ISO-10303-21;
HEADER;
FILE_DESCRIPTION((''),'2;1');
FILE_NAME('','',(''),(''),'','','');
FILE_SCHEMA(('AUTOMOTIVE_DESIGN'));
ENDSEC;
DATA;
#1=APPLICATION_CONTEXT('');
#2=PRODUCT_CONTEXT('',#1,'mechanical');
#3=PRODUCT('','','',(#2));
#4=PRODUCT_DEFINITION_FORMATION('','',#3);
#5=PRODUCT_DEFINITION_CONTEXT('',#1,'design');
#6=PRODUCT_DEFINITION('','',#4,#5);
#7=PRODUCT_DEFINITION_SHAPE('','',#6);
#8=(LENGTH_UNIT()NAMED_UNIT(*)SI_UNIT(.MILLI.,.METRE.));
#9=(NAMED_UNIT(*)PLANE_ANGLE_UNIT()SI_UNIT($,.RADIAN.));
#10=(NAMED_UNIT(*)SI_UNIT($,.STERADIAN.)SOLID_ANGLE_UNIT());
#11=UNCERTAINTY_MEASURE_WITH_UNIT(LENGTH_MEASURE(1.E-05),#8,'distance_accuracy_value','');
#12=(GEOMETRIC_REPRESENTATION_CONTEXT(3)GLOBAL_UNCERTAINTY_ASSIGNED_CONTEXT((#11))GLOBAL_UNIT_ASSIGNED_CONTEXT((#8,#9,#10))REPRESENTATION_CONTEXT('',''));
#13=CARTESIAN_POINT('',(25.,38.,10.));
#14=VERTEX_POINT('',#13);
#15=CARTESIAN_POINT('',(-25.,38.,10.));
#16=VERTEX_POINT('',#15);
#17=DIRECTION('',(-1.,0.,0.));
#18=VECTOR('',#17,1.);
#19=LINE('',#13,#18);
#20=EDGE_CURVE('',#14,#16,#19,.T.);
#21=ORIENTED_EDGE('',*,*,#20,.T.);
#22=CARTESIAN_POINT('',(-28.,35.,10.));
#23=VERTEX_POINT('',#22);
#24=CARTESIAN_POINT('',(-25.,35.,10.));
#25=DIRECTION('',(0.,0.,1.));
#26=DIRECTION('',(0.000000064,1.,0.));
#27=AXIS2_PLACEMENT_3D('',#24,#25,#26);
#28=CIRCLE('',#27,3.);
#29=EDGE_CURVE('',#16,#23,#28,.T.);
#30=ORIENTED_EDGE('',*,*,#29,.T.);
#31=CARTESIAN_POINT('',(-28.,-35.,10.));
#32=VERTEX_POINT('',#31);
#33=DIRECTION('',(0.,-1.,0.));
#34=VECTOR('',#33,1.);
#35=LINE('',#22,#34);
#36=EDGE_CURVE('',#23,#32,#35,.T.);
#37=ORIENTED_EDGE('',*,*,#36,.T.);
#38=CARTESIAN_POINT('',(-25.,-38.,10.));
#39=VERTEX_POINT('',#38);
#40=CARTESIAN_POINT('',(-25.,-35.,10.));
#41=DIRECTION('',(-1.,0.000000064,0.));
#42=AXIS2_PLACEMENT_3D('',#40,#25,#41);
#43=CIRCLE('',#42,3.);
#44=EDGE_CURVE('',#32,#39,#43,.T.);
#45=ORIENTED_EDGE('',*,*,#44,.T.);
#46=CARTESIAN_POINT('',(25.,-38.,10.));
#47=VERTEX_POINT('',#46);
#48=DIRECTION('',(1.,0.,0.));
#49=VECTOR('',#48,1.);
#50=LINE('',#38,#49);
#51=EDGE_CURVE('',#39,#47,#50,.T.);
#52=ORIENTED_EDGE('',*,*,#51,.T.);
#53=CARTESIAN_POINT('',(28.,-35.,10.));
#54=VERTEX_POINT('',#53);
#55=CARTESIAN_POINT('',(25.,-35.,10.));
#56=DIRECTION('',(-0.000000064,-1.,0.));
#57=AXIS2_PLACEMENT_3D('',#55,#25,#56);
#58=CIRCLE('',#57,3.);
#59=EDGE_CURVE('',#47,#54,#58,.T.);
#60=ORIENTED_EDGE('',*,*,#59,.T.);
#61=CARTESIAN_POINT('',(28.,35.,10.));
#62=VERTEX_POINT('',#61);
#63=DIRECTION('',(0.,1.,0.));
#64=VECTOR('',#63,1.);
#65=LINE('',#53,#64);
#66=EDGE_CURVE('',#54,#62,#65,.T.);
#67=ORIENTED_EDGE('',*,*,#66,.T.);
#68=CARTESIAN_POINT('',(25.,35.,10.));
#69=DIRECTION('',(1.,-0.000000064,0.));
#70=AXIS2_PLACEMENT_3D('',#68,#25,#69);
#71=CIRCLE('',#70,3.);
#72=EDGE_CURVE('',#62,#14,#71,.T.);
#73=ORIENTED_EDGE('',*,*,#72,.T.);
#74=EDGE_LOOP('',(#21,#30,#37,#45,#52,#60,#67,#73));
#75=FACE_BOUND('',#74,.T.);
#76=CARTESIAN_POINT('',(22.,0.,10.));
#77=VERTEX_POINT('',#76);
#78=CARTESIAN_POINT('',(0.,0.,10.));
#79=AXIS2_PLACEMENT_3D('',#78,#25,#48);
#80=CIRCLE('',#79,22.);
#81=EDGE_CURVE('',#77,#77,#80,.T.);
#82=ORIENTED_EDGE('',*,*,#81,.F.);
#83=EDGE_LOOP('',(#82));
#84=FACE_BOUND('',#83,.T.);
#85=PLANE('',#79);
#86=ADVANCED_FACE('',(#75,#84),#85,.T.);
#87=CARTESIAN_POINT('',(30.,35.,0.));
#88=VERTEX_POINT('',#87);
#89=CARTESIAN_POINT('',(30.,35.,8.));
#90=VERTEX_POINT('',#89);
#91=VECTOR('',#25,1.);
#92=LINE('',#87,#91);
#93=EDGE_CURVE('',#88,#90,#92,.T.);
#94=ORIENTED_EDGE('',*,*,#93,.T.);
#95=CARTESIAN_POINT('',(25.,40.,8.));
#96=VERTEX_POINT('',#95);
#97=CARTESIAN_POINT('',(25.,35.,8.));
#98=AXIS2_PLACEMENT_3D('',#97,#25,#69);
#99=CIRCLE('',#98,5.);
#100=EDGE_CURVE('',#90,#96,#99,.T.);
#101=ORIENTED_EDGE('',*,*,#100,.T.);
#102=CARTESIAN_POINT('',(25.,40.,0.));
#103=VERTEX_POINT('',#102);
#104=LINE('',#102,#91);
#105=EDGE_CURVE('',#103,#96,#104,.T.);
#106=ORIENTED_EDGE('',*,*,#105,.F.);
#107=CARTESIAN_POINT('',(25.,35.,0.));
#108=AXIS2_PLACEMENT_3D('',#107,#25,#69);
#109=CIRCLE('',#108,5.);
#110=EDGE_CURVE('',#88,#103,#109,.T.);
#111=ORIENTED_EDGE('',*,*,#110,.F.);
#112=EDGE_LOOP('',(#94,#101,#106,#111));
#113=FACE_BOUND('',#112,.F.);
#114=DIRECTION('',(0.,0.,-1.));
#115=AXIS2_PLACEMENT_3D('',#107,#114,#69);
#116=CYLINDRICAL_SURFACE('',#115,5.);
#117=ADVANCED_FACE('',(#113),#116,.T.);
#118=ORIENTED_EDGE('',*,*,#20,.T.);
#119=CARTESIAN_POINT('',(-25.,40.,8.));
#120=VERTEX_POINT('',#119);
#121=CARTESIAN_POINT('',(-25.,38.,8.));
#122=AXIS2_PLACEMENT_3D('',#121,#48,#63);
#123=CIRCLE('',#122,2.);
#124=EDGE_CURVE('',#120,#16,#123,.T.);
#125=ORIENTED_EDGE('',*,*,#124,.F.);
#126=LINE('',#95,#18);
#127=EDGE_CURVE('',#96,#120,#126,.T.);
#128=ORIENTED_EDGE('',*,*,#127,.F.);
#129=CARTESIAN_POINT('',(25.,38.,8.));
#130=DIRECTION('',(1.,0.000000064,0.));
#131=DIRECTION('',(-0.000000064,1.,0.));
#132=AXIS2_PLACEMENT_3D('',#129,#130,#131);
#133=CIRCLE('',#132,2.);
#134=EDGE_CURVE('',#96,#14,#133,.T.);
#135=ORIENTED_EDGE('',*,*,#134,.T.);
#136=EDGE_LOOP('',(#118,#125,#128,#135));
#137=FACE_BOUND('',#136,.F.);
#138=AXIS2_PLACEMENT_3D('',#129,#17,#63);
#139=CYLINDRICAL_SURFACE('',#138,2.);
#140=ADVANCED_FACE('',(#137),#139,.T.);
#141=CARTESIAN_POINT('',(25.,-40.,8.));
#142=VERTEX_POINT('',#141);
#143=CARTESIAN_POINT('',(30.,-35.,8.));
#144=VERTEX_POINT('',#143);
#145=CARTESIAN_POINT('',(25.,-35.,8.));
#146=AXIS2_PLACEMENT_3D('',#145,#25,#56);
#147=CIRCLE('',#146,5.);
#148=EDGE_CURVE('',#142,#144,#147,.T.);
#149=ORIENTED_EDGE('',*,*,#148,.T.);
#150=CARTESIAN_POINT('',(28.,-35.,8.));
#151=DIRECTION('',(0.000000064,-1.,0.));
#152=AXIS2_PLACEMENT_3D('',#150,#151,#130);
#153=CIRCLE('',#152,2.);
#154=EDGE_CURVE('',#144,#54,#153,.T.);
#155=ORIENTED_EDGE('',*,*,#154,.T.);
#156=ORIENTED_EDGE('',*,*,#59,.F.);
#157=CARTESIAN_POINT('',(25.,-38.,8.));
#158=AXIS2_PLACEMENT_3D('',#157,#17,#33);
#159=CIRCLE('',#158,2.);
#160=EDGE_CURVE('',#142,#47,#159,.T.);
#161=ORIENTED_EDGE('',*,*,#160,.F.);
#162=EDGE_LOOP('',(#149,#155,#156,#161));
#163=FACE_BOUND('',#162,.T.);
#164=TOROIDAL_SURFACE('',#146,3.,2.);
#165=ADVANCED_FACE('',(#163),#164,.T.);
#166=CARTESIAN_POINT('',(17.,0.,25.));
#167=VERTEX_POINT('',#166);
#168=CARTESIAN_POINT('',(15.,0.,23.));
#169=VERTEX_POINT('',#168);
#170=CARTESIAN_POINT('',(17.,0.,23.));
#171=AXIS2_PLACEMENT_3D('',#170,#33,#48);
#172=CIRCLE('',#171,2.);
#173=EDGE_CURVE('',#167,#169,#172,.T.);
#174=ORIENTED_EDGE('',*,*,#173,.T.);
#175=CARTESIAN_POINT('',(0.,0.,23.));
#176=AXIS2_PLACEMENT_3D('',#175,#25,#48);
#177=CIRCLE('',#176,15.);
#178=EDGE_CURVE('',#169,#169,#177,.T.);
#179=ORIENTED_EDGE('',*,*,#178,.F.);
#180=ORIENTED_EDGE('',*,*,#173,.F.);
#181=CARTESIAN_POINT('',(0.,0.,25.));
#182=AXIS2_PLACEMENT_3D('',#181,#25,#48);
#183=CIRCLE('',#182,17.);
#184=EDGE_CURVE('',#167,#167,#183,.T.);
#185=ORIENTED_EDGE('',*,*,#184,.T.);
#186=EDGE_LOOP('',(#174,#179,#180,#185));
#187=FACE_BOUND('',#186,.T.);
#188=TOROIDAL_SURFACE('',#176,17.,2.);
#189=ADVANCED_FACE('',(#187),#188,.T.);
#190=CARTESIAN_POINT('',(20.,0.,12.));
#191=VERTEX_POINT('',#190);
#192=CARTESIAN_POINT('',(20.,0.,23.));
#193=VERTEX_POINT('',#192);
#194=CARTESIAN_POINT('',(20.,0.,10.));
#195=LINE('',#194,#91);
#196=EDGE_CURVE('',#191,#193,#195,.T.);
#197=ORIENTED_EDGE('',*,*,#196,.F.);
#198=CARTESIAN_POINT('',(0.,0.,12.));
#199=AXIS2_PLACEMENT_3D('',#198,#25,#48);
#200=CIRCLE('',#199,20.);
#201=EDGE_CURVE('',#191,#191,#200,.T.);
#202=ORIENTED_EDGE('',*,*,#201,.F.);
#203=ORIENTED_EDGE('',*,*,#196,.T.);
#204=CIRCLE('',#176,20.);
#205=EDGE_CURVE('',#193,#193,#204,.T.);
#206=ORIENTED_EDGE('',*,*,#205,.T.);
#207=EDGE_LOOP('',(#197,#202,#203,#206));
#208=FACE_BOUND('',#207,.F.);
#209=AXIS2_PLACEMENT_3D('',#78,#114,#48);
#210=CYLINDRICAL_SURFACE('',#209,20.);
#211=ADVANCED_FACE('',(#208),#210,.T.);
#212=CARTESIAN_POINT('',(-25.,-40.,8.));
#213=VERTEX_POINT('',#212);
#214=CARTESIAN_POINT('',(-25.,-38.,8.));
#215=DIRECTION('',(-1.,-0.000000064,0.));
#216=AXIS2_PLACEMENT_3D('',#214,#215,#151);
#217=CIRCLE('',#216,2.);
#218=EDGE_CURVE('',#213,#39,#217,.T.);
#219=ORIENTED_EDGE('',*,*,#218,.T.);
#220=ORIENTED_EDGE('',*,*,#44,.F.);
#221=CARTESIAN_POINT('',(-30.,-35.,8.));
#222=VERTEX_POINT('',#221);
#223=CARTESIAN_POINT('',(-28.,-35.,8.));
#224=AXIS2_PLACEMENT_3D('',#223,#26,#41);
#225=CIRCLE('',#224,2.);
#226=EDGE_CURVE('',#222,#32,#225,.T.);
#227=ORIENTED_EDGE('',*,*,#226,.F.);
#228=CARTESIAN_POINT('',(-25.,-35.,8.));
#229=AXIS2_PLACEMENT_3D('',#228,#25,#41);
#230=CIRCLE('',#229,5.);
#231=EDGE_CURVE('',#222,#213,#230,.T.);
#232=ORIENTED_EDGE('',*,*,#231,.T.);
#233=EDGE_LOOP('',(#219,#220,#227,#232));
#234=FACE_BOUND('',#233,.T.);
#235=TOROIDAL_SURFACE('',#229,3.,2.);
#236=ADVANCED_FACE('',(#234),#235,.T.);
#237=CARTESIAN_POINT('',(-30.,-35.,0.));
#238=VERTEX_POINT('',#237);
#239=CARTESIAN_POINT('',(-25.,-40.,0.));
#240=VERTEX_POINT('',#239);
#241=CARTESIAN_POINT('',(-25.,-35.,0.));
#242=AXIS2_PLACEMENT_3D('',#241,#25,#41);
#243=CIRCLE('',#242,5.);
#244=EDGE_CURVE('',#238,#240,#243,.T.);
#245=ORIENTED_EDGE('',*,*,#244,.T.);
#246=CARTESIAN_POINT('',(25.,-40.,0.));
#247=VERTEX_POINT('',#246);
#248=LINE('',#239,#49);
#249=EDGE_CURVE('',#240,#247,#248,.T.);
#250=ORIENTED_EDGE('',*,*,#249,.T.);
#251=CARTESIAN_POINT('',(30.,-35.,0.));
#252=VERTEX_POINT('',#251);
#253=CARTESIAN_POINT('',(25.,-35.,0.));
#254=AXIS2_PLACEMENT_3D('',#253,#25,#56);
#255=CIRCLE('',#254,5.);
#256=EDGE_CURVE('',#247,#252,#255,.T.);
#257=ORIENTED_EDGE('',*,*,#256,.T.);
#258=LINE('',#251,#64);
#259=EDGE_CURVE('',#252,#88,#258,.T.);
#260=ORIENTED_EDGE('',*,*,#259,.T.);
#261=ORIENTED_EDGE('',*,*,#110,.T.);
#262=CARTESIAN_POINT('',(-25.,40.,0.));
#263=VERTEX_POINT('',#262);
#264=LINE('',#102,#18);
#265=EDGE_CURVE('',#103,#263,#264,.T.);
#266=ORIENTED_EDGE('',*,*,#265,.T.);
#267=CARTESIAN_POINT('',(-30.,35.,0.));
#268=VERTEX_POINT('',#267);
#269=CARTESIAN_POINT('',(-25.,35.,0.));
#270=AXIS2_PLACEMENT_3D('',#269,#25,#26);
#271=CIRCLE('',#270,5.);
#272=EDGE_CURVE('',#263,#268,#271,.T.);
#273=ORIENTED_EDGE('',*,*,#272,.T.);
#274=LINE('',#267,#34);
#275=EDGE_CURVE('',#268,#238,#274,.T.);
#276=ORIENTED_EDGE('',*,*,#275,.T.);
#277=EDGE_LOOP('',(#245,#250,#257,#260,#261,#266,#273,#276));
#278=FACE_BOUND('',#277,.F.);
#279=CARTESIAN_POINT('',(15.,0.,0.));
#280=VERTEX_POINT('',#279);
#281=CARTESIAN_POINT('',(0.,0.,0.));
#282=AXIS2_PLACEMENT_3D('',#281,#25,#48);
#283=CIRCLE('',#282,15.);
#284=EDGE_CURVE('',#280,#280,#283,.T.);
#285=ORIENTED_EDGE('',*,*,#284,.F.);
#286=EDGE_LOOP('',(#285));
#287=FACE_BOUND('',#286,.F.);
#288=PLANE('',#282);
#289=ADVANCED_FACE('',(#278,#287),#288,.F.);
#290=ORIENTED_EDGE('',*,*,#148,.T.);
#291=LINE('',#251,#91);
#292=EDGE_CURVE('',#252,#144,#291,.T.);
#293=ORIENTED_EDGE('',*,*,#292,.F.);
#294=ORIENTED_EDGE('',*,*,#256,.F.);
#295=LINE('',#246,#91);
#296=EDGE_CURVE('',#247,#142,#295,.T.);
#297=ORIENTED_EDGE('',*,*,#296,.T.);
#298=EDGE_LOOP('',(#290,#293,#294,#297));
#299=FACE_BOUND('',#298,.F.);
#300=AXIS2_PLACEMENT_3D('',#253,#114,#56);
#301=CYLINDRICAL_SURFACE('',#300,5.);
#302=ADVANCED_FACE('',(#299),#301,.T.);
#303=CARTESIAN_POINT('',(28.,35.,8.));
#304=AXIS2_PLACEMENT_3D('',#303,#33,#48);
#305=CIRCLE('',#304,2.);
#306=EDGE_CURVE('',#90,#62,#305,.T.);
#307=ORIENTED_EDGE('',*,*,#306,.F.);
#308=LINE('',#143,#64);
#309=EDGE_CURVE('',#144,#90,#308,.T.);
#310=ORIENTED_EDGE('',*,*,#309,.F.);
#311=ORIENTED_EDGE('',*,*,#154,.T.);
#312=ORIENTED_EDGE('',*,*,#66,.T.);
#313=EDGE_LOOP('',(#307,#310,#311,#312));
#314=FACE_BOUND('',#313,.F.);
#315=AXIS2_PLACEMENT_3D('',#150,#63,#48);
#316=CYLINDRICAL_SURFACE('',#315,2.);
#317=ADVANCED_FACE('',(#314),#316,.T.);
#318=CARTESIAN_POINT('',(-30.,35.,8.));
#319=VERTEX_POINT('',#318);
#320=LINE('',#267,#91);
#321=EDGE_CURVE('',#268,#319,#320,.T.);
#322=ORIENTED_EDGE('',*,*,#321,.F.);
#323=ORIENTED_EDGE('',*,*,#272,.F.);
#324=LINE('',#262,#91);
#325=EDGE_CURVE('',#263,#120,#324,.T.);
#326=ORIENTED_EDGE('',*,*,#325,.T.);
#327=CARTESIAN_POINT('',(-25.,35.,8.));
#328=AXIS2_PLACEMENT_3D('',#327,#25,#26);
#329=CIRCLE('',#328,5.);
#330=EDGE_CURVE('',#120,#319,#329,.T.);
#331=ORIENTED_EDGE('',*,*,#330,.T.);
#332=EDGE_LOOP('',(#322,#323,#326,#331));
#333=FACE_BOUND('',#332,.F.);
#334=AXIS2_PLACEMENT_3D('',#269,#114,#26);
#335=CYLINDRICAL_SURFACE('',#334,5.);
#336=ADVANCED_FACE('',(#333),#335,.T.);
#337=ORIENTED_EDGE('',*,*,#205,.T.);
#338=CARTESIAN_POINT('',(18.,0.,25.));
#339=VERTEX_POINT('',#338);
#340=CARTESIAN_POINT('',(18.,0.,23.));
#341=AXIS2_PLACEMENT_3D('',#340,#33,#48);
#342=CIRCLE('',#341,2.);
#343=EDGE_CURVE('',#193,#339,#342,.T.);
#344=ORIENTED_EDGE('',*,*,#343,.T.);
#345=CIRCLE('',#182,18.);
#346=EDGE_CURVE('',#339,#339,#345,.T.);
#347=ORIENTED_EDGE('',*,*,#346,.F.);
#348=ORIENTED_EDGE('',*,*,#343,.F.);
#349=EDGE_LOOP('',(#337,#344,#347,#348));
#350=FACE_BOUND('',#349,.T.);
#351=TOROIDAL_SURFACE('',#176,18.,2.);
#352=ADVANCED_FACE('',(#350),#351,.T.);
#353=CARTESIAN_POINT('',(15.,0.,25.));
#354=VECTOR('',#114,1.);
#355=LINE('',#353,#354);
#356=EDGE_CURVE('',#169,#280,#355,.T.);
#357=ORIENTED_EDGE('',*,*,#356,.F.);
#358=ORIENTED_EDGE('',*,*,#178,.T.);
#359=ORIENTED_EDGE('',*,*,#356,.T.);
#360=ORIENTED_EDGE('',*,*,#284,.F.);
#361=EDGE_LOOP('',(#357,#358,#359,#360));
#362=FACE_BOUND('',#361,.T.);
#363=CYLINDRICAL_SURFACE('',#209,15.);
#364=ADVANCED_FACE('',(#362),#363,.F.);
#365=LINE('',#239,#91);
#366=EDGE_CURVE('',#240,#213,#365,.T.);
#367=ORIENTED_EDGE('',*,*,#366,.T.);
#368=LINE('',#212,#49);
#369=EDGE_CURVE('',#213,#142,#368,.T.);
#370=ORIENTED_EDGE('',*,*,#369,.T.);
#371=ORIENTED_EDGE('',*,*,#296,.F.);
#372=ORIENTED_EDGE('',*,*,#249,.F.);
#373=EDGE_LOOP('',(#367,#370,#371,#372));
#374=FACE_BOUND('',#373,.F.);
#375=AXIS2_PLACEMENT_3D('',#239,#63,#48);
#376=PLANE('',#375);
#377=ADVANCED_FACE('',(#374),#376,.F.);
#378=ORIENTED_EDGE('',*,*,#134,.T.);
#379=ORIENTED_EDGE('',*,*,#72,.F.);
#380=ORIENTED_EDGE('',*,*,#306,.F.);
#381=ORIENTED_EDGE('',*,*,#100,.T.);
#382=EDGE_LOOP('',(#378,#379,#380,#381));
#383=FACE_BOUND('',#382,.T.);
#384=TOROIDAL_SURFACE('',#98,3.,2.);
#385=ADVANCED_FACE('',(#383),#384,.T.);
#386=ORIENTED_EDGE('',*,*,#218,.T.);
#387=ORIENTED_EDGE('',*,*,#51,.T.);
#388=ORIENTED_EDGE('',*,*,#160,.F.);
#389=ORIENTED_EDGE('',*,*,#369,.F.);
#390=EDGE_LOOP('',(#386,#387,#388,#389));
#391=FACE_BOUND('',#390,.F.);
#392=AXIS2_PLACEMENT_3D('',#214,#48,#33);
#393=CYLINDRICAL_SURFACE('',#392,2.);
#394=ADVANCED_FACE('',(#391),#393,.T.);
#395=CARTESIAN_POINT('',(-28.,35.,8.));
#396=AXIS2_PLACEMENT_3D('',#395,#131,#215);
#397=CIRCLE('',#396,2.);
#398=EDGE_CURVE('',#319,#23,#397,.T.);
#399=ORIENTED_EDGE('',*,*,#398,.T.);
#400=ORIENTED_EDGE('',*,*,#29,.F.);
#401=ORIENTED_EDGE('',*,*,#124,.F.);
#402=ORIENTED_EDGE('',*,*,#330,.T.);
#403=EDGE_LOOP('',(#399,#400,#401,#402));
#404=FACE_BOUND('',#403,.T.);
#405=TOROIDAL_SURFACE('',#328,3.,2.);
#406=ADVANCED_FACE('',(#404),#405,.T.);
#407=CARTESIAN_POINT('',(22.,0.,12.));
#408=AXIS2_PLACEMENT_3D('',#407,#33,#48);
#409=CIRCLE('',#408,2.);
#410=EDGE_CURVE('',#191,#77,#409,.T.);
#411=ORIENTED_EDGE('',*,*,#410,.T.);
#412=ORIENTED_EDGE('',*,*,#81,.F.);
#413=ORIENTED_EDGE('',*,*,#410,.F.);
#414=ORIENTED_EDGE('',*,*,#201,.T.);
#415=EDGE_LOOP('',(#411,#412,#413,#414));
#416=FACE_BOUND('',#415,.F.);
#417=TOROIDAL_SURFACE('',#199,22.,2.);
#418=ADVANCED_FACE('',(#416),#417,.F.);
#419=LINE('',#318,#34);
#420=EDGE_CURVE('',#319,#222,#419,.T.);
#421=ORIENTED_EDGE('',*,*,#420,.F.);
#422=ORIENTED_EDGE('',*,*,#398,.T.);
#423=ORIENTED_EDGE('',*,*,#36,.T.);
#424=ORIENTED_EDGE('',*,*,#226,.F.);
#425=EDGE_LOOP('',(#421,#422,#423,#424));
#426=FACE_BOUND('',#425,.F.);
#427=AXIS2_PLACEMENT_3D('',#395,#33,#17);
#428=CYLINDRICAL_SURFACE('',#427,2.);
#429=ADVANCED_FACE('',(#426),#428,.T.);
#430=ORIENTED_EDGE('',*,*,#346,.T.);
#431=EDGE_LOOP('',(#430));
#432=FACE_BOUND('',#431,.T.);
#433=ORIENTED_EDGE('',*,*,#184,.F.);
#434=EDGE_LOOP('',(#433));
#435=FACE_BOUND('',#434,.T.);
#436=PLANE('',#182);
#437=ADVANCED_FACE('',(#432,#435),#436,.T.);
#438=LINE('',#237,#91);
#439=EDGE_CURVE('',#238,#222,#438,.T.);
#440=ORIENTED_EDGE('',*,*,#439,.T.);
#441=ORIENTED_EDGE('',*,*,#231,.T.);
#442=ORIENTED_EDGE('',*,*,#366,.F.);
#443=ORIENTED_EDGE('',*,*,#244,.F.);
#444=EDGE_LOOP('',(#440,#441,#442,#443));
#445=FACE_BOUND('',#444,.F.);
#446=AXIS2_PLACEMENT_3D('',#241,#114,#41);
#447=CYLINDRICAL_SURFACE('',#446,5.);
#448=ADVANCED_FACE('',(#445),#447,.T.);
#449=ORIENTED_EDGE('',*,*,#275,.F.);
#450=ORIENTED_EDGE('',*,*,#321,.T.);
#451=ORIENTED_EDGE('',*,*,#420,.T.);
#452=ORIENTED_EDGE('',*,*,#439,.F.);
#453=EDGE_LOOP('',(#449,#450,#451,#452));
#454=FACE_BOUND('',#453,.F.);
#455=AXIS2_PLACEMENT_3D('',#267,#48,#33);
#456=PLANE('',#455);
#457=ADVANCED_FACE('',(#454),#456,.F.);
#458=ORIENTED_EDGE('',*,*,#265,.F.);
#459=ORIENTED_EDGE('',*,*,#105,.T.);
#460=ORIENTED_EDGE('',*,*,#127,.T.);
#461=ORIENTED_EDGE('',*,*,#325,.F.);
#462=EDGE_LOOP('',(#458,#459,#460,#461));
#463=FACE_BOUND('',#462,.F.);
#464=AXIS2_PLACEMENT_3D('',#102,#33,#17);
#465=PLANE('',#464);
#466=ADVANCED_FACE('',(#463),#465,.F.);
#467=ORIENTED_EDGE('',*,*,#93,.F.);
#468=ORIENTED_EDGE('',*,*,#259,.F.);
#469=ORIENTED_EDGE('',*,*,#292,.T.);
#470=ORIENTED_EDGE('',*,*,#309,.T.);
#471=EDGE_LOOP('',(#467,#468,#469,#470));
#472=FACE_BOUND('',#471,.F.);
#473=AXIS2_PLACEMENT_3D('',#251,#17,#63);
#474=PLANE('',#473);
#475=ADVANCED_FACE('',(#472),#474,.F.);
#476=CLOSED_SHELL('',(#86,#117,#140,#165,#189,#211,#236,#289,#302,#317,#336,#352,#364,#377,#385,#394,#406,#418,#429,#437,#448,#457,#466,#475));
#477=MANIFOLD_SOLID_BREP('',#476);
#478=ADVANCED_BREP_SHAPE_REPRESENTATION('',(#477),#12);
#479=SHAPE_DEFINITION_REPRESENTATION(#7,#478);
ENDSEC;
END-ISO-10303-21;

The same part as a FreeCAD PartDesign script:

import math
import FreeCAD as App
import Part
import Sketcher

V = App.Vector


def edges_at(feature, points):
    """Names of the edges that pass closest to the given points."""
    edges = feature.Shape.Edges
    near = lambda p: min(range(len(edges)), key=lambda i: edges[i].distToShape(Part.Vertex(*p))[0])
    return sorted({f"Edge{near(p) + 1}" for p in points})

doc = App.newDocument("Part")
body = doc.addObject("PartDesign::Body", "Body")

# Sketch on XY plane
sketch1 = doc.addObject("Sketcher::SketchObject", "Sketch")
body.addObject(sketch1)
sketch1.AttachmentSupport = (doc.XY_Plane, [""])
sketch1.MapMode = "FlatFace"
sketch1.addGeometry([
    Part.LineSegment(V(-25, -40, 0), V(25, -40, 0)),  # 0
    Part.ArcOfCircle(Part.Circle(V(25, -35, 0), V(0, 0, 1), 5), math.radians(-90), math.radians(0)),  # 1
    Part.LineSegment(V(30, -35, 0), V(30, 35, 0)),  # 2
    Part.ArcOfCircle(Part.Circle(V(25, 35, 0), V(0, 0, 1), 5), math.radians(0), math.radians(90)),  # 3
    Part.LineSegment(V(25, 40, 0), V(-25, 40, 0)),  # 4
    Part.ArcOfCircle(Part.Circle(V(-25, 35, 0), V(0, 0, 1), 5), math.radians(90), math.radians(180)),  # 5
    Part.LineSegment(V(-30, 35, 0), V(-30, -35, 0)),  # 6
    Part.ArcOfCircle(Part.Circle(V(-25, -35, 0), V(0, 0, 1), 5), math.radians(180), math.radians(270)),  # 7
    Part.Circle(V(0, 0, 0), V(0, 0, 1), 15),  # 8
], False)
sketch1.addConstraint([
    Sketcher.Constraint("Tangent", 0, 2, 1, 1),
    Sketcher.Constraint("Tangent", 1, 2, 2, 1),
    Sketcher.Constraint("Tangent", 2, 2, 3, 1),
    Sketcher.Constraint("Tangent", 3, 2, 4, 1),
    Sketcher.Constraint("Tangent", 4, 2, 5, 1),
    Sketcher.Constraint("Tangent", 5, 2, 6, 1),
    Sketcher.Constraint("Tangent", 6, 2, 7, 1),
    Sketcher.Constraint("Tangent", 7, 2, 0, 1),
    Sketcher.Constraint("Horizontal", 0),
    Sketcher.Constraint("Vertical", 2),
    Sketcher.Constraint("Horizontal", 4),
    Sketcher.Constraint("Vertical", 6),
    Sketcher.Constraint("Coincident", 8, 3, -1, 1),
    Sketcher.Constraint("Equal", 1, 3),
    Sketcher.Constraint("Equal", 3, 5),
    Sketcher.Constraint("Equal", 5, 7),
    Sketcher.Constraint("Symmetric", 1, 3, 5, 3, -1, 1),
    Sketcher.Constraint("Diameter", 8, 30.0),
    Sketcher.Constraint("Radius", 1, 5.0),
    Sketcher.Constraint("DistanceX", 0, 1, 0, 2, 50.0),
    Sketcher.Constraint("DistanceY", 2, 1, 2, 2, 70.0),
])
pad1 = doc.addObject("PartDesign::Pad", "Pad")
body.addObject(pad1)
pad1.Profile = sketch1
pad1.Length = 10

# Sketch on XY plane
sketch2 = doc.addObject("Sketcher::SketchObject", "Sketch001")
body.addObject(sketch2)
sketch2.AttachmentSupport = (doc.XY_Plane, [""])
sketch2.MapMode = "FlatFace"
sketch2.AttachmentOffset = App.Placement(V(0, 0, 10), App.Rotation())
sketch2.addGeometry([
    Part.Circle(V(0, 0, 0), V(0, 0, 1), 20),
    Part.Circle(V(0, 0, 0), V(0, 0, 1), 15),
], False)
sketch2.addConstraint([
    Sketcher.Constraint("Coincident", 0, 3, -1, 1),
    Sketcher.Constraint("Coincident", 1, 3, -1, 1),
    Sketcher.Constraint("Diameter", 0, 40.0),
    Sketcher.Constraint("Diameter", 1, 30.0),
])
pad2 = doc.addObject("PartDesign::Pad", "Pad001")
body.addObject(pad2)
pad2.Profile = sketch2
pad2.Length = 15
doc.recompute()

fillet = doc.addObject("PartDesign::Fillet", "Fillet")
body.addObject(fillet)
fillet.Base = (pad2, edges_at(pad2, [
    (-20, 0, 25),
    (-15, 0, 25),
    (-28.536, -38.536, 10),
    (-30, 0, 10),
    (0, -40, 10),
    (-28.536, 38.536, 10),
    (28.536, -38.536, 10),
    (0, 40, 10),
    (30, 0, 10),
    (28.536, 38.536, 10),
    (-20, 0, 10),
]))
fillet.Radius = 2

doc.recompute()
